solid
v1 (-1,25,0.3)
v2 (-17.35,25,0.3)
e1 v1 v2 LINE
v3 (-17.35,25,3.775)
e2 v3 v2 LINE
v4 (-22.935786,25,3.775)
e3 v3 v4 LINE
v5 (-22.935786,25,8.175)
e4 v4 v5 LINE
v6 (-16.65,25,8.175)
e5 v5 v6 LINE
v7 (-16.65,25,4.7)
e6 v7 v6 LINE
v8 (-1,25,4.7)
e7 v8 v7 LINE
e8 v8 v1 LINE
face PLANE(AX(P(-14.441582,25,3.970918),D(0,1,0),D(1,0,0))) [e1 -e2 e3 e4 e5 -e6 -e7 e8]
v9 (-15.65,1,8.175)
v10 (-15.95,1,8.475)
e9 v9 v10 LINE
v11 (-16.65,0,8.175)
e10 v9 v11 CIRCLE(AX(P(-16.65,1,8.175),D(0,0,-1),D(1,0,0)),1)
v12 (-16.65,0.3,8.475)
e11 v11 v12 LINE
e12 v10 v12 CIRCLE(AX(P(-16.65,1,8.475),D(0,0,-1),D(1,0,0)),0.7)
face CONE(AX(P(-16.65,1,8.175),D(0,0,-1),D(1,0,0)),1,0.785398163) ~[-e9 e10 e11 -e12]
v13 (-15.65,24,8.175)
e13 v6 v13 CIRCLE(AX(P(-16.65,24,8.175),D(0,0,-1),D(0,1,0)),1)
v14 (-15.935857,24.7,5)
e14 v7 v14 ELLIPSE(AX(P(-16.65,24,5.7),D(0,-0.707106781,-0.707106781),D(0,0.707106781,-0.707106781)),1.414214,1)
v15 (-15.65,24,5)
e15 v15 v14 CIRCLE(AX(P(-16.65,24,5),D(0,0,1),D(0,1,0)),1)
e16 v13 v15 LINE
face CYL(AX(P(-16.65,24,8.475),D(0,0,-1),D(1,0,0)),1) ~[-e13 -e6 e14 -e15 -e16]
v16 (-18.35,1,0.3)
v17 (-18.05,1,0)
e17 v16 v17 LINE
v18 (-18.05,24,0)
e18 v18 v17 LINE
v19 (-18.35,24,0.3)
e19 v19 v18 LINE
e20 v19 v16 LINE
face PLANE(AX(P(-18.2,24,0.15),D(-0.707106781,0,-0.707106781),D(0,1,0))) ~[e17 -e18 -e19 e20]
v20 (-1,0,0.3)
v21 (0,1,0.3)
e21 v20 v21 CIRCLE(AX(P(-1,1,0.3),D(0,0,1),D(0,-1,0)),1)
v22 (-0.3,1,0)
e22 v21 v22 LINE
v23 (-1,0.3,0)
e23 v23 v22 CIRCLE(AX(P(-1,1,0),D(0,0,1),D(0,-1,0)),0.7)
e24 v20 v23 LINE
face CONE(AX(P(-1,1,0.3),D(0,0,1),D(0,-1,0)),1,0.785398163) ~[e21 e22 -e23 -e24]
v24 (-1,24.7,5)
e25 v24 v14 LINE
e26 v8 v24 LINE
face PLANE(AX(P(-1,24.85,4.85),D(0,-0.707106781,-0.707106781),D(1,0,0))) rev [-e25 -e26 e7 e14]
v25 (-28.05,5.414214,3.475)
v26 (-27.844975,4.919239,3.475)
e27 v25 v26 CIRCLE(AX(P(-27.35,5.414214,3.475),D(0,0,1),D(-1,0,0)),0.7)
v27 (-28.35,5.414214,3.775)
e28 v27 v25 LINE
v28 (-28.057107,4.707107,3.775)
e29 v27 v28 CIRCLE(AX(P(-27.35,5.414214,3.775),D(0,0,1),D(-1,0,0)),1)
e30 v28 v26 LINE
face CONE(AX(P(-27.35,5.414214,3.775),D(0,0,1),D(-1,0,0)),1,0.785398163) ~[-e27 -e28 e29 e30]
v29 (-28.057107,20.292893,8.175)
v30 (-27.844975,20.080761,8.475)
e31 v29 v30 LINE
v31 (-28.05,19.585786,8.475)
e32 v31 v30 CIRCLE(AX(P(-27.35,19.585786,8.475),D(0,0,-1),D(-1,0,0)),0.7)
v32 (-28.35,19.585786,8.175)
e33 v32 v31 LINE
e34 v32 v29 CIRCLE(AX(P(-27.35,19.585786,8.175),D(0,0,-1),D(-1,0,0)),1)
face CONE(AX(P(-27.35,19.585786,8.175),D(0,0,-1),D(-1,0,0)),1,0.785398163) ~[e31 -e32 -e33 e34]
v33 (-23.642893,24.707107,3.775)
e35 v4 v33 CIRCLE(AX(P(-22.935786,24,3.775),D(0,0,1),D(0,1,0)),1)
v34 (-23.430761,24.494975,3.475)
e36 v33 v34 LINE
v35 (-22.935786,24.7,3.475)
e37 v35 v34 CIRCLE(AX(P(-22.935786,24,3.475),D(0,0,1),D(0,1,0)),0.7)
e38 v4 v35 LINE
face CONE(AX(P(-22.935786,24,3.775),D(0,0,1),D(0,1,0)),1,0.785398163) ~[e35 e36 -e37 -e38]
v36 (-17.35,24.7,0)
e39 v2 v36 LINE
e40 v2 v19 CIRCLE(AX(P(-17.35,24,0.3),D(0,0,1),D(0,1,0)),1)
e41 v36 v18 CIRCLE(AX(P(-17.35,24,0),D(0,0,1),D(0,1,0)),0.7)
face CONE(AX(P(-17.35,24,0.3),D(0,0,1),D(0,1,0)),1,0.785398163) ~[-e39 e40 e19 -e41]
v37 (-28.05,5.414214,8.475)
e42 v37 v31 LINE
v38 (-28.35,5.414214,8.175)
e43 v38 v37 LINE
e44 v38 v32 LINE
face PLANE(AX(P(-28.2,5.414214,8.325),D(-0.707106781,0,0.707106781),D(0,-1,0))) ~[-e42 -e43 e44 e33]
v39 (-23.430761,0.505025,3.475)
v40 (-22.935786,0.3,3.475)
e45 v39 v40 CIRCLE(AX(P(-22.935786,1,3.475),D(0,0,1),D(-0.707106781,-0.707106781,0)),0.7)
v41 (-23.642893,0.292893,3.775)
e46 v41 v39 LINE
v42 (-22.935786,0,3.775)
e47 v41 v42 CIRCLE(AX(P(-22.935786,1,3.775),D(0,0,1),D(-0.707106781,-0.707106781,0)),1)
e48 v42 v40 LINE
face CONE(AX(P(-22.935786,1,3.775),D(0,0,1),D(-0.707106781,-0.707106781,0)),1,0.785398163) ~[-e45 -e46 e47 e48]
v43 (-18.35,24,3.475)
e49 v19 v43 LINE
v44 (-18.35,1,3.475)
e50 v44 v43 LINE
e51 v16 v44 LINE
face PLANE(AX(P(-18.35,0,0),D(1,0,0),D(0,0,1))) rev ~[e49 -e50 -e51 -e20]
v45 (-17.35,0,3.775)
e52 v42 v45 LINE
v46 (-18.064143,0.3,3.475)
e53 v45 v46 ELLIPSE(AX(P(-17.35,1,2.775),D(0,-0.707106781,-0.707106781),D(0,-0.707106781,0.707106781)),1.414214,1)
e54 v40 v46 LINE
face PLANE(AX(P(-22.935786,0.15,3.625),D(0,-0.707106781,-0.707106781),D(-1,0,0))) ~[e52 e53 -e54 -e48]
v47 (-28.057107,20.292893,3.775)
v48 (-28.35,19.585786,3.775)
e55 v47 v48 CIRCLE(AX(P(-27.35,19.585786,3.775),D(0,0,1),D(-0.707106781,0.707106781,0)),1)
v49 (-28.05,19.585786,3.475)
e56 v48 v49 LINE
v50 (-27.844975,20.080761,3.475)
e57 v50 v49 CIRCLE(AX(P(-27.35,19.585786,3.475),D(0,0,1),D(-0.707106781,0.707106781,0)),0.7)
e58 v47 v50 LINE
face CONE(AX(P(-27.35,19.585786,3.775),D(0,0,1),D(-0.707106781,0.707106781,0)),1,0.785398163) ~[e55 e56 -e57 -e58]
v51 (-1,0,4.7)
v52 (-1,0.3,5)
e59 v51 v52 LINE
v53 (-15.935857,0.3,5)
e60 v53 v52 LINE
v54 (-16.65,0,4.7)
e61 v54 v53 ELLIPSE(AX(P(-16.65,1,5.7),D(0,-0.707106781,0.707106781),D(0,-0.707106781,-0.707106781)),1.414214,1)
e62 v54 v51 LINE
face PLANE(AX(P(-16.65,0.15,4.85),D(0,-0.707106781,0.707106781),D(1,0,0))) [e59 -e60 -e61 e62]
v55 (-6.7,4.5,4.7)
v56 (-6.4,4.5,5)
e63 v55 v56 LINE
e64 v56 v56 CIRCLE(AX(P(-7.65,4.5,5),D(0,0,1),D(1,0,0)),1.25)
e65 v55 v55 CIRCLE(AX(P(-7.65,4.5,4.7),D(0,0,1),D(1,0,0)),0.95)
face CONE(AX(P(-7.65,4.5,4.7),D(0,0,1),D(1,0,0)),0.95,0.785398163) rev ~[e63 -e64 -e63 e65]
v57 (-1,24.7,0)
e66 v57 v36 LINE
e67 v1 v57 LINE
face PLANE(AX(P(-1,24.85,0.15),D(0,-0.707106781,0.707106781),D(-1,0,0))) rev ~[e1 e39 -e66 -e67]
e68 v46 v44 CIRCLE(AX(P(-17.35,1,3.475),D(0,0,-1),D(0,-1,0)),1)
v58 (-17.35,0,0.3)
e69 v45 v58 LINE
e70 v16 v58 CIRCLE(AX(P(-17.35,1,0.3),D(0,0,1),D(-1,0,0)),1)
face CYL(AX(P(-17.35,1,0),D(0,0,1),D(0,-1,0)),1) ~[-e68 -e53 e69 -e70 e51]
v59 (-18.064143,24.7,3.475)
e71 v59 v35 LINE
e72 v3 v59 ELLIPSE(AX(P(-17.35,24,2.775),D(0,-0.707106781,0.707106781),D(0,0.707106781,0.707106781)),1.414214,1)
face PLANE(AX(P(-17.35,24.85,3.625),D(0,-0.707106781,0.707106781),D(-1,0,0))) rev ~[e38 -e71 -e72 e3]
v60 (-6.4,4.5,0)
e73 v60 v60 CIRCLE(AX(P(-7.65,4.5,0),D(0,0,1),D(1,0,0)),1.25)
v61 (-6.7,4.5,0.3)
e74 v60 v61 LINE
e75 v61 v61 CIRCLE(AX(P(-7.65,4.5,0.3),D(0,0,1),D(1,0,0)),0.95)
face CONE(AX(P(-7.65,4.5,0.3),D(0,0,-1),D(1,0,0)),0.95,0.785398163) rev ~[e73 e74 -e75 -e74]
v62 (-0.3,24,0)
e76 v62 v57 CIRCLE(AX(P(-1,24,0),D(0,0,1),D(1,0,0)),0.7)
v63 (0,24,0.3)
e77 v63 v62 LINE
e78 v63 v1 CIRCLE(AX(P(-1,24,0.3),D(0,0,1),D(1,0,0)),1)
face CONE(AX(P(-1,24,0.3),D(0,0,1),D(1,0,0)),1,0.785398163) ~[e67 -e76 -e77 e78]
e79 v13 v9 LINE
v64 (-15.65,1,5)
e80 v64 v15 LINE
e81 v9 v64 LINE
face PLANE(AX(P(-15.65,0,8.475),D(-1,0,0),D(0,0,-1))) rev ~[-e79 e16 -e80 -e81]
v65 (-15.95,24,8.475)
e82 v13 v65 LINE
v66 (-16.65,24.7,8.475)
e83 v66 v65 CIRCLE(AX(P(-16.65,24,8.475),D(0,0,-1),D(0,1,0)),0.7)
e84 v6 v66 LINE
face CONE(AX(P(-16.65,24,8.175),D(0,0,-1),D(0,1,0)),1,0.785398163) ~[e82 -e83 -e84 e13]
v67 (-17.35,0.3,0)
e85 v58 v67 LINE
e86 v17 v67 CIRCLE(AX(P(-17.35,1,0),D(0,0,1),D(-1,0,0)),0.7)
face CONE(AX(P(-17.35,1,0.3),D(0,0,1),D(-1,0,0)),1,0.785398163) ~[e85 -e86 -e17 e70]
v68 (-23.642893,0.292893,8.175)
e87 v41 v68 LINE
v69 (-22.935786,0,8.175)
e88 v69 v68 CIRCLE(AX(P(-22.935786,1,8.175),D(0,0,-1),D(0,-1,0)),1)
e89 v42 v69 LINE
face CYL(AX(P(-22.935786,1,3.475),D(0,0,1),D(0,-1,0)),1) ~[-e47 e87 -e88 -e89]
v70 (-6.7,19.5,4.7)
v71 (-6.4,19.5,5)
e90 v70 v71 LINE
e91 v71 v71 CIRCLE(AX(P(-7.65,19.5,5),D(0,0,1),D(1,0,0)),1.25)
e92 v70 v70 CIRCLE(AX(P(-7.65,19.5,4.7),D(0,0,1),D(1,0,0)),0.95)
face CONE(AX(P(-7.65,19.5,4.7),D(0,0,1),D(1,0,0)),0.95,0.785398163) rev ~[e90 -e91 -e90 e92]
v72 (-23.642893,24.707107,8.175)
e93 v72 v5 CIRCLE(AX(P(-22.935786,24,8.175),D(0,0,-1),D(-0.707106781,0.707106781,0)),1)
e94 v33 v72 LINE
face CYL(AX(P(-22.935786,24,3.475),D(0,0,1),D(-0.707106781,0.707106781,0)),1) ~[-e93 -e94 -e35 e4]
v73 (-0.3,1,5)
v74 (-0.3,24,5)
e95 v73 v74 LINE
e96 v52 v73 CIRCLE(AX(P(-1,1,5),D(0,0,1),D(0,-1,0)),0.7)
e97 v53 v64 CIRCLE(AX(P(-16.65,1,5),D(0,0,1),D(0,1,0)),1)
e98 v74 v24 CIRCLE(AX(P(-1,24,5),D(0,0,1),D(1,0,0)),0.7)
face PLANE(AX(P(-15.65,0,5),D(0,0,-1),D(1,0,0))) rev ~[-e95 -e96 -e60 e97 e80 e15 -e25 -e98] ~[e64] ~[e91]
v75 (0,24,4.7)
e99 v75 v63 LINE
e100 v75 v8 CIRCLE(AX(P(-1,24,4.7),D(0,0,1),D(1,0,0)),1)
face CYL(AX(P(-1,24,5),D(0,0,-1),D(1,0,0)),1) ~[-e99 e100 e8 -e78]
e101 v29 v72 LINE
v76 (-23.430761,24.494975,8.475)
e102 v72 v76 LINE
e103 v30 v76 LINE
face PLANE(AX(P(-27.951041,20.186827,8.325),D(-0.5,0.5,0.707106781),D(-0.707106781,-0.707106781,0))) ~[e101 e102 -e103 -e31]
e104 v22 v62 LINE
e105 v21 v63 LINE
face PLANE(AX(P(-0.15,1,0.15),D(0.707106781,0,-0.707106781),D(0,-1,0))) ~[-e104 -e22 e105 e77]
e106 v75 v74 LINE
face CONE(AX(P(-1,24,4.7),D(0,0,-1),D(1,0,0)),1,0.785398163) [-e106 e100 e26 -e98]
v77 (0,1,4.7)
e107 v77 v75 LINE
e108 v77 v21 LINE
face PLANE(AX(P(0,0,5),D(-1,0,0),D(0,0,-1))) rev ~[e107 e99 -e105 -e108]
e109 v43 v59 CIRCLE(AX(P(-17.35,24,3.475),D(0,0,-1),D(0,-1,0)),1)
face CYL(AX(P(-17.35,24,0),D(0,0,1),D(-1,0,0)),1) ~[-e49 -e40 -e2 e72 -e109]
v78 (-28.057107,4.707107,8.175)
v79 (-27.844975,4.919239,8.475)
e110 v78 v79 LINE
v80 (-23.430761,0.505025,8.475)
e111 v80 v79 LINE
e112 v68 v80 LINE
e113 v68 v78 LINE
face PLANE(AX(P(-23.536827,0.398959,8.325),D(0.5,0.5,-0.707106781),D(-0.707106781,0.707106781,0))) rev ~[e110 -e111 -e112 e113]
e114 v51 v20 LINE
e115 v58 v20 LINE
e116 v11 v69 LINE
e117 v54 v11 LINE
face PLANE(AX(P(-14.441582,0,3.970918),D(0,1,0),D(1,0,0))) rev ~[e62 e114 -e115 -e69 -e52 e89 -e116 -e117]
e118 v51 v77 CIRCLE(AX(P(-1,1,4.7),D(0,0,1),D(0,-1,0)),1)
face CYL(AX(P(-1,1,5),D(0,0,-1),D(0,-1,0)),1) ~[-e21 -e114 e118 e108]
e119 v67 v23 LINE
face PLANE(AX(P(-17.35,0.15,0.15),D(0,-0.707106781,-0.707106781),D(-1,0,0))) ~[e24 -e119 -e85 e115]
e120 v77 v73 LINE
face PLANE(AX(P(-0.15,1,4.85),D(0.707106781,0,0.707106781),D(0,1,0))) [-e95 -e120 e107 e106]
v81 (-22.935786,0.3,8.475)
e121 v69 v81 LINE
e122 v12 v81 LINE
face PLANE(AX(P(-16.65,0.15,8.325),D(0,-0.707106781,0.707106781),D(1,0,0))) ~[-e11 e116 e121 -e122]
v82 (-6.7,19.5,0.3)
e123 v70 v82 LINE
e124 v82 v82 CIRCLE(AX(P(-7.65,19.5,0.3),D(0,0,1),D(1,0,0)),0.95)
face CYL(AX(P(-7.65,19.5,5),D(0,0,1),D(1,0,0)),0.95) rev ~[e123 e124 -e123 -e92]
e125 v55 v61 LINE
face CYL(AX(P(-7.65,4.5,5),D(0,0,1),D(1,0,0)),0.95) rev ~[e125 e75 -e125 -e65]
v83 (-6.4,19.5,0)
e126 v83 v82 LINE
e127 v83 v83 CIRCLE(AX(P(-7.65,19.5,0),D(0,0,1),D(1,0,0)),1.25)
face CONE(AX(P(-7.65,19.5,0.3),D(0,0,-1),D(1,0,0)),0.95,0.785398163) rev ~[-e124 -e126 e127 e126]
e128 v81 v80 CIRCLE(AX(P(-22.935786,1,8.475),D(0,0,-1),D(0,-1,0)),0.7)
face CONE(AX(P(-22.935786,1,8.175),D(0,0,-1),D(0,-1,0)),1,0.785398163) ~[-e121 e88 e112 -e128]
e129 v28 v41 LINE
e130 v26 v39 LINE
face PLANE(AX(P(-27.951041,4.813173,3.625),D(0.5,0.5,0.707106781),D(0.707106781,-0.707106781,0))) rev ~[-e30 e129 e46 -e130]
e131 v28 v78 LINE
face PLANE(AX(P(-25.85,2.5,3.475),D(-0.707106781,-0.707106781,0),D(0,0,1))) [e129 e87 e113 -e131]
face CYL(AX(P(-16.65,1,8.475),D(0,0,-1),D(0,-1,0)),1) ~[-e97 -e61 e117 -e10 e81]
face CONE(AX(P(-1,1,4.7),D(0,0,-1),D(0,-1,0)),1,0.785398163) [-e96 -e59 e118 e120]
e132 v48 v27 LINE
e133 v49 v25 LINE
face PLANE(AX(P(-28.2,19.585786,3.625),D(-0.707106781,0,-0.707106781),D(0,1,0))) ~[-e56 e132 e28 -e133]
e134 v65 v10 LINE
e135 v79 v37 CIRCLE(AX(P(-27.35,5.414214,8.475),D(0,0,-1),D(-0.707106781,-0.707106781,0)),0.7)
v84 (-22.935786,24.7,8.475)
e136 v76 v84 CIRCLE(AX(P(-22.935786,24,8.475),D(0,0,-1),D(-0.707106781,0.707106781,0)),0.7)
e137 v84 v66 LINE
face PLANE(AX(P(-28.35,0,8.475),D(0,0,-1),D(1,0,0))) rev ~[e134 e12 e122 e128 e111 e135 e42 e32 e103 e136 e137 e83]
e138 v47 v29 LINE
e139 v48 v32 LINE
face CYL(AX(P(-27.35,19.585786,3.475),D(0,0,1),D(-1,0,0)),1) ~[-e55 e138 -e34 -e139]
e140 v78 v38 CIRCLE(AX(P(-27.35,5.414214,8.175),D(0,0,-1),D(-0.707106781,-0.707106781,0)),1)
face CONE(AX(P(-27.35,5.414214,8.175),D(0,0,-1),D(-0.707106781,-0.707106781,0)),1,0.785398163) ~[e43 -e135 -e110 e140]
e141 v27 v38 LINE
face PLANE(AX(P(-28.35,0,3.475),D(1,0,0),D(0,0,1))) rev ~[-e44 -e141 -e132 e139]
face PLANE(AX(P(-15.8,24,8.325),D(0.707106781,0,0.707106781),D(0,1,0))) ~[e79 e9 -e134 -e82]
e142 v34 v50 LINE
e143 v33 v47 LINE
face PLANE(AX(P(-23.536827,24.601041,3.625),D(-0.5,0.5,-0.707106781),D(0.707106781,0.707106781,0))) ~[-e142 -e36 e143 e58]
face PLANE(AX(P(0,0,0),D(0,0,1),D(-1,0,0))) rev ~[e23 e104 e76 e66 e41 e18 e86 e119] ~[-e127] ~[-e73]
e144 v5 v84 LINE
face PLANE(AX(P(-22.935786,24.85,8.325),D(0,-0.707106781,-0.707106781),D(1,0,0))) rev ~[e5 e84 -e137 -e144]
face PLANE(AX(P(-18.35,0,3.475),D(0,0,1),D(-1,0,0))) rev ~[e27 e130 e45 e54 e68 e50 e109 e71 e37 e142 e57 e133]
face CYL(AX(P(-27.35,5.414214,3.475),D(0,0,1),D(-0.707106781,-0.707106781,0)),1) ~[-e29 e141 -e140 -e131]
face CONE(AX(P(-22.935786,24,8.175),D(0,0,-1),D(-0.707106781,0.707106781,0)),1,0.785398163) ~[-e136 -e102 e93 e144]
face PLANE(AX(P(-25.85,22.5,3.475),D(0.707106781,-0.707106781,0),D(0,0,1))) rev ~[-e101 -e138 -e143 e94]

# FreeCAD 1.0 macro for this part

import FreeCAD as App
import Part
import Sketcher


def edges_at(feature, points):
    """Names of the edges that pass closest to the given points."""
    edges = feature.Shape.Edges
    near = lambda p: min(range(len(edges)), key=lambda i: edges[i].distToShape(Part.Vertex(*p))[0])
    return sorted({f"Edge{near(p) + 1}" for p in points})


def add_polygon(sketch, points):
    """Adds a closed chain of lines whose ends are joined by coincident constraints."""
    first, n = sketch.GeometryCount, len(points)
    for a, b in zip(points, points[1:] + points[:1]):
        sketch.addGeometry(Part.LineSegment(App.Vector(*a, 0), App.Vector(*b, 0)), False)
    for i in range(n):
        sketch.addConstraint(Sketcher.Constraint("Coincident", first + i, 2, first + (i + 1) % n, 1))

doc = App.newDocument("Part")
body = doc.addObject("PartDesign::Body", "Body")

# Sketch on XZ plane
sketch1 = doc.addObject("Sketcher::SketchObject", "Sketch")
body.addObject(sketch1)
sketch1.AttachmentSupport = (doc.XZ_Plane, [""])
sketch1.MapMode = "FlatFace"
add_polygon(sketch1, [(0, 0), (-18.4, 0), (-18.4, 3.5), (-28.4, 3.5), (-28.4, 8.5), (-15.7, 8.5), (-15.7, 5), (0, 5)])  # lines 0-7
sketch1.addConstraint(Sketcher.Constraint("Horizontal", 0))
sketch1.addConstraint(Sketcher.Constraint("Vertical", 1))
sketch1.addConstraint(Sketcher.Constraint("Horizontal", 2))
sketch1.addConstraint(Sketcher.Constraint("Vertical", 3))
sketch1.addConstraint(Sketcher.Constraint("Horizontal", 4))
sketch1.addConstraint(Sketcher.Constraint("Vertical", 5))
sketch1.addConstraint(Sketcher.Constraint("Horizontal", 6))
sketch1.addConstraint(Sketcher.Constraint("Vertical", 7))
sketch1.addConstraint(Sketcher.Constraint("Coincident", 7, 2, -1, 1))
sketch1.addConstraint(Sketcher.Constraint("Equal", 1, 5))
sketch1.addConstraint(Sketcher.Constraint("DistanceX", 2, 2, 2, 1, 10.0))
sketch1.addConstraint(Sketcher.Constraint("DistanceY", 3, 1, 3, 2, 5.0))
sketch1.addConstraint(Sketcher.Constraint("DistanceX", 4, 1, 4, 2, 12.7))
sketch1.addConstraint(Sketcher.Constraint("DistanceX", 0, 2, 0, 1, 18.35))
sketch1.addConstraint(Sketcher.Constraint("DistanceY", 1, 1, 1, 2, 3.475))
pad1 = doc.addObject("PartDesign::Pad", "Pad")
body.addObject(pad1)
pad1.Profile = sketch1
pad1.Length = 25
pad1.Reversed = True

# Sketch on XY plane
sketch2 = doc.addObject("Sketcher::SketchObject", "Sketch001")
body.addObject(sketch2)
sketch2.AttachmentSupport = (doc.XY_Plane, [""])
sketch2.MapMode = "FlatFace"
sketch2.AttachmentOffset = App.Placement(App.Vector(0, 0, 5), App.Rotation())
sketch2.addGeometry(Part.Circle(App.Vector(-7.7, 4.5, 0), App.Vector(0, 0, 1), 0.9), False)
sketch2.addGeometry(Part.Circle(App.Vector(-7.7, 19.5, 0), App.Vector(0, 0, 1), 0.9), False)
sketch2.addConstraint(Sketcher.Constraint("Equal", 0, 1))
sketch2.addConstraint(Sketcher.Constraint("Vertical", 0, 3, 1, 3))
sketch2.addConstraint(Sketcher.Constraint("Diameter", 0, 1.9))
sketch2.addConstraint(Sketcher.Constraint("DistanceY", 0, 3, 1, 3, 15.0))
sketch2.addConstraint(Sketcher.Constraint("DistanceY", -1, 1, 0, 3, 4.5))
sketch2.addConstraint(Sketcher.Constraint("DistanceX", 0, 3, -1, 1, 7.65))
pocket1 = doc.addObject("PartDesign::Pocket", "Pocket")
body.addObject(pocket1)
pocket1.Profile = sketch2
pocket1.Length = 25
doc.recompute()

chamfer = doc.addObject("PartDesign::Chamfer", "Chamfer")
body.addObject(chamfer)
chamfer.Base = (pocket1, edges_at(pocket1, [(-28.35, 25, 5.975), (-28.35, 0, 5.975)]))
chamfer.Size = 5
doc.recompute()

fillet = doc.addObject("PartDesign::Fillet", "Fillet")
body.addObject(fillet)
fillet.Base = (chamfer, edges_at(chamfer, [
    (-18.35, 0, 1.738),
    (0, 0, 2.5),
    (-18.35, 25, 1.738),
    (-15.65, 25, 6.737),
    (-28.35, 20, 5.975),
    (-28.35, 5, 5.975),
    (-23.35, 0, 5.975),
    (-23.35, 25, 5.975),
    (0, 25, 2.5),
    (-15.65, 0, 6.737),
]))
fillet.Radius = 1
doc.recompute()

chamfer2 = doc.addObject("PartDesign::Chamfer", "Chamfer001")
body.addObject(chamfer2)
chamfer2.Base = (fillet, edges_at(fillet, [
    (-20.143, 0, 3.475),
    (-20.143, 25, 3.475),
    (-8.6, 4.5, 0),
    (-8.6, 4.5, 5),
    (-8.6, 19.5, 0),
    (-8.6, 19.5, 5),
    (-8.825, 25, 5),
    (-19.793, 25, 8.475),
    (-9.175, 25, 0),
    (-15.65, 12.5, 8.475),
    (-28.35, 12.5, 8.475),
    (-25.85, 2.5, 8.475),
    (-19.793, 0, 8.475),
    (-25.85, 22.5, 8.475),
    (-28.274, 5.032, 8.475),
    (-23.318, 0.076, 8.475),
    (-15.943, 0.293, 8.475),
    (-28.274, 19.968, 8.475),
    (-23.318, 24.924, 8.475),
    (-15.943, 24.707, 8.475),
    (-25.85, 22.5, 3.475),
    (-25.85, 2.5, 3.475),
    (-28.35, 12.5, 3.475),
    (-28.274, 5.032, 3.475),
    (-23.318, 0.076, 3.475),
    (-28.274, 19.968, 3.475),
    (-23.318, 24.924, 3.475),
    (-9.175, 0, 0),
    (-18.35, 12.5, 0),
    (0, 12.5, 0),
    (-0.293, 0.293, 0),
    (-18.057, 0.293, 0),
    (-18.057, 24.707, 0),
    (-0.293, 24.707, 0),
    (0, 12.5, 5),
    (-0.293, 0.293, 5),
    (-0.293, 24.707, 5),
    (-8.825, 0, 5),
]))
chamfer2.Size = 0.3

doc.recompute()
